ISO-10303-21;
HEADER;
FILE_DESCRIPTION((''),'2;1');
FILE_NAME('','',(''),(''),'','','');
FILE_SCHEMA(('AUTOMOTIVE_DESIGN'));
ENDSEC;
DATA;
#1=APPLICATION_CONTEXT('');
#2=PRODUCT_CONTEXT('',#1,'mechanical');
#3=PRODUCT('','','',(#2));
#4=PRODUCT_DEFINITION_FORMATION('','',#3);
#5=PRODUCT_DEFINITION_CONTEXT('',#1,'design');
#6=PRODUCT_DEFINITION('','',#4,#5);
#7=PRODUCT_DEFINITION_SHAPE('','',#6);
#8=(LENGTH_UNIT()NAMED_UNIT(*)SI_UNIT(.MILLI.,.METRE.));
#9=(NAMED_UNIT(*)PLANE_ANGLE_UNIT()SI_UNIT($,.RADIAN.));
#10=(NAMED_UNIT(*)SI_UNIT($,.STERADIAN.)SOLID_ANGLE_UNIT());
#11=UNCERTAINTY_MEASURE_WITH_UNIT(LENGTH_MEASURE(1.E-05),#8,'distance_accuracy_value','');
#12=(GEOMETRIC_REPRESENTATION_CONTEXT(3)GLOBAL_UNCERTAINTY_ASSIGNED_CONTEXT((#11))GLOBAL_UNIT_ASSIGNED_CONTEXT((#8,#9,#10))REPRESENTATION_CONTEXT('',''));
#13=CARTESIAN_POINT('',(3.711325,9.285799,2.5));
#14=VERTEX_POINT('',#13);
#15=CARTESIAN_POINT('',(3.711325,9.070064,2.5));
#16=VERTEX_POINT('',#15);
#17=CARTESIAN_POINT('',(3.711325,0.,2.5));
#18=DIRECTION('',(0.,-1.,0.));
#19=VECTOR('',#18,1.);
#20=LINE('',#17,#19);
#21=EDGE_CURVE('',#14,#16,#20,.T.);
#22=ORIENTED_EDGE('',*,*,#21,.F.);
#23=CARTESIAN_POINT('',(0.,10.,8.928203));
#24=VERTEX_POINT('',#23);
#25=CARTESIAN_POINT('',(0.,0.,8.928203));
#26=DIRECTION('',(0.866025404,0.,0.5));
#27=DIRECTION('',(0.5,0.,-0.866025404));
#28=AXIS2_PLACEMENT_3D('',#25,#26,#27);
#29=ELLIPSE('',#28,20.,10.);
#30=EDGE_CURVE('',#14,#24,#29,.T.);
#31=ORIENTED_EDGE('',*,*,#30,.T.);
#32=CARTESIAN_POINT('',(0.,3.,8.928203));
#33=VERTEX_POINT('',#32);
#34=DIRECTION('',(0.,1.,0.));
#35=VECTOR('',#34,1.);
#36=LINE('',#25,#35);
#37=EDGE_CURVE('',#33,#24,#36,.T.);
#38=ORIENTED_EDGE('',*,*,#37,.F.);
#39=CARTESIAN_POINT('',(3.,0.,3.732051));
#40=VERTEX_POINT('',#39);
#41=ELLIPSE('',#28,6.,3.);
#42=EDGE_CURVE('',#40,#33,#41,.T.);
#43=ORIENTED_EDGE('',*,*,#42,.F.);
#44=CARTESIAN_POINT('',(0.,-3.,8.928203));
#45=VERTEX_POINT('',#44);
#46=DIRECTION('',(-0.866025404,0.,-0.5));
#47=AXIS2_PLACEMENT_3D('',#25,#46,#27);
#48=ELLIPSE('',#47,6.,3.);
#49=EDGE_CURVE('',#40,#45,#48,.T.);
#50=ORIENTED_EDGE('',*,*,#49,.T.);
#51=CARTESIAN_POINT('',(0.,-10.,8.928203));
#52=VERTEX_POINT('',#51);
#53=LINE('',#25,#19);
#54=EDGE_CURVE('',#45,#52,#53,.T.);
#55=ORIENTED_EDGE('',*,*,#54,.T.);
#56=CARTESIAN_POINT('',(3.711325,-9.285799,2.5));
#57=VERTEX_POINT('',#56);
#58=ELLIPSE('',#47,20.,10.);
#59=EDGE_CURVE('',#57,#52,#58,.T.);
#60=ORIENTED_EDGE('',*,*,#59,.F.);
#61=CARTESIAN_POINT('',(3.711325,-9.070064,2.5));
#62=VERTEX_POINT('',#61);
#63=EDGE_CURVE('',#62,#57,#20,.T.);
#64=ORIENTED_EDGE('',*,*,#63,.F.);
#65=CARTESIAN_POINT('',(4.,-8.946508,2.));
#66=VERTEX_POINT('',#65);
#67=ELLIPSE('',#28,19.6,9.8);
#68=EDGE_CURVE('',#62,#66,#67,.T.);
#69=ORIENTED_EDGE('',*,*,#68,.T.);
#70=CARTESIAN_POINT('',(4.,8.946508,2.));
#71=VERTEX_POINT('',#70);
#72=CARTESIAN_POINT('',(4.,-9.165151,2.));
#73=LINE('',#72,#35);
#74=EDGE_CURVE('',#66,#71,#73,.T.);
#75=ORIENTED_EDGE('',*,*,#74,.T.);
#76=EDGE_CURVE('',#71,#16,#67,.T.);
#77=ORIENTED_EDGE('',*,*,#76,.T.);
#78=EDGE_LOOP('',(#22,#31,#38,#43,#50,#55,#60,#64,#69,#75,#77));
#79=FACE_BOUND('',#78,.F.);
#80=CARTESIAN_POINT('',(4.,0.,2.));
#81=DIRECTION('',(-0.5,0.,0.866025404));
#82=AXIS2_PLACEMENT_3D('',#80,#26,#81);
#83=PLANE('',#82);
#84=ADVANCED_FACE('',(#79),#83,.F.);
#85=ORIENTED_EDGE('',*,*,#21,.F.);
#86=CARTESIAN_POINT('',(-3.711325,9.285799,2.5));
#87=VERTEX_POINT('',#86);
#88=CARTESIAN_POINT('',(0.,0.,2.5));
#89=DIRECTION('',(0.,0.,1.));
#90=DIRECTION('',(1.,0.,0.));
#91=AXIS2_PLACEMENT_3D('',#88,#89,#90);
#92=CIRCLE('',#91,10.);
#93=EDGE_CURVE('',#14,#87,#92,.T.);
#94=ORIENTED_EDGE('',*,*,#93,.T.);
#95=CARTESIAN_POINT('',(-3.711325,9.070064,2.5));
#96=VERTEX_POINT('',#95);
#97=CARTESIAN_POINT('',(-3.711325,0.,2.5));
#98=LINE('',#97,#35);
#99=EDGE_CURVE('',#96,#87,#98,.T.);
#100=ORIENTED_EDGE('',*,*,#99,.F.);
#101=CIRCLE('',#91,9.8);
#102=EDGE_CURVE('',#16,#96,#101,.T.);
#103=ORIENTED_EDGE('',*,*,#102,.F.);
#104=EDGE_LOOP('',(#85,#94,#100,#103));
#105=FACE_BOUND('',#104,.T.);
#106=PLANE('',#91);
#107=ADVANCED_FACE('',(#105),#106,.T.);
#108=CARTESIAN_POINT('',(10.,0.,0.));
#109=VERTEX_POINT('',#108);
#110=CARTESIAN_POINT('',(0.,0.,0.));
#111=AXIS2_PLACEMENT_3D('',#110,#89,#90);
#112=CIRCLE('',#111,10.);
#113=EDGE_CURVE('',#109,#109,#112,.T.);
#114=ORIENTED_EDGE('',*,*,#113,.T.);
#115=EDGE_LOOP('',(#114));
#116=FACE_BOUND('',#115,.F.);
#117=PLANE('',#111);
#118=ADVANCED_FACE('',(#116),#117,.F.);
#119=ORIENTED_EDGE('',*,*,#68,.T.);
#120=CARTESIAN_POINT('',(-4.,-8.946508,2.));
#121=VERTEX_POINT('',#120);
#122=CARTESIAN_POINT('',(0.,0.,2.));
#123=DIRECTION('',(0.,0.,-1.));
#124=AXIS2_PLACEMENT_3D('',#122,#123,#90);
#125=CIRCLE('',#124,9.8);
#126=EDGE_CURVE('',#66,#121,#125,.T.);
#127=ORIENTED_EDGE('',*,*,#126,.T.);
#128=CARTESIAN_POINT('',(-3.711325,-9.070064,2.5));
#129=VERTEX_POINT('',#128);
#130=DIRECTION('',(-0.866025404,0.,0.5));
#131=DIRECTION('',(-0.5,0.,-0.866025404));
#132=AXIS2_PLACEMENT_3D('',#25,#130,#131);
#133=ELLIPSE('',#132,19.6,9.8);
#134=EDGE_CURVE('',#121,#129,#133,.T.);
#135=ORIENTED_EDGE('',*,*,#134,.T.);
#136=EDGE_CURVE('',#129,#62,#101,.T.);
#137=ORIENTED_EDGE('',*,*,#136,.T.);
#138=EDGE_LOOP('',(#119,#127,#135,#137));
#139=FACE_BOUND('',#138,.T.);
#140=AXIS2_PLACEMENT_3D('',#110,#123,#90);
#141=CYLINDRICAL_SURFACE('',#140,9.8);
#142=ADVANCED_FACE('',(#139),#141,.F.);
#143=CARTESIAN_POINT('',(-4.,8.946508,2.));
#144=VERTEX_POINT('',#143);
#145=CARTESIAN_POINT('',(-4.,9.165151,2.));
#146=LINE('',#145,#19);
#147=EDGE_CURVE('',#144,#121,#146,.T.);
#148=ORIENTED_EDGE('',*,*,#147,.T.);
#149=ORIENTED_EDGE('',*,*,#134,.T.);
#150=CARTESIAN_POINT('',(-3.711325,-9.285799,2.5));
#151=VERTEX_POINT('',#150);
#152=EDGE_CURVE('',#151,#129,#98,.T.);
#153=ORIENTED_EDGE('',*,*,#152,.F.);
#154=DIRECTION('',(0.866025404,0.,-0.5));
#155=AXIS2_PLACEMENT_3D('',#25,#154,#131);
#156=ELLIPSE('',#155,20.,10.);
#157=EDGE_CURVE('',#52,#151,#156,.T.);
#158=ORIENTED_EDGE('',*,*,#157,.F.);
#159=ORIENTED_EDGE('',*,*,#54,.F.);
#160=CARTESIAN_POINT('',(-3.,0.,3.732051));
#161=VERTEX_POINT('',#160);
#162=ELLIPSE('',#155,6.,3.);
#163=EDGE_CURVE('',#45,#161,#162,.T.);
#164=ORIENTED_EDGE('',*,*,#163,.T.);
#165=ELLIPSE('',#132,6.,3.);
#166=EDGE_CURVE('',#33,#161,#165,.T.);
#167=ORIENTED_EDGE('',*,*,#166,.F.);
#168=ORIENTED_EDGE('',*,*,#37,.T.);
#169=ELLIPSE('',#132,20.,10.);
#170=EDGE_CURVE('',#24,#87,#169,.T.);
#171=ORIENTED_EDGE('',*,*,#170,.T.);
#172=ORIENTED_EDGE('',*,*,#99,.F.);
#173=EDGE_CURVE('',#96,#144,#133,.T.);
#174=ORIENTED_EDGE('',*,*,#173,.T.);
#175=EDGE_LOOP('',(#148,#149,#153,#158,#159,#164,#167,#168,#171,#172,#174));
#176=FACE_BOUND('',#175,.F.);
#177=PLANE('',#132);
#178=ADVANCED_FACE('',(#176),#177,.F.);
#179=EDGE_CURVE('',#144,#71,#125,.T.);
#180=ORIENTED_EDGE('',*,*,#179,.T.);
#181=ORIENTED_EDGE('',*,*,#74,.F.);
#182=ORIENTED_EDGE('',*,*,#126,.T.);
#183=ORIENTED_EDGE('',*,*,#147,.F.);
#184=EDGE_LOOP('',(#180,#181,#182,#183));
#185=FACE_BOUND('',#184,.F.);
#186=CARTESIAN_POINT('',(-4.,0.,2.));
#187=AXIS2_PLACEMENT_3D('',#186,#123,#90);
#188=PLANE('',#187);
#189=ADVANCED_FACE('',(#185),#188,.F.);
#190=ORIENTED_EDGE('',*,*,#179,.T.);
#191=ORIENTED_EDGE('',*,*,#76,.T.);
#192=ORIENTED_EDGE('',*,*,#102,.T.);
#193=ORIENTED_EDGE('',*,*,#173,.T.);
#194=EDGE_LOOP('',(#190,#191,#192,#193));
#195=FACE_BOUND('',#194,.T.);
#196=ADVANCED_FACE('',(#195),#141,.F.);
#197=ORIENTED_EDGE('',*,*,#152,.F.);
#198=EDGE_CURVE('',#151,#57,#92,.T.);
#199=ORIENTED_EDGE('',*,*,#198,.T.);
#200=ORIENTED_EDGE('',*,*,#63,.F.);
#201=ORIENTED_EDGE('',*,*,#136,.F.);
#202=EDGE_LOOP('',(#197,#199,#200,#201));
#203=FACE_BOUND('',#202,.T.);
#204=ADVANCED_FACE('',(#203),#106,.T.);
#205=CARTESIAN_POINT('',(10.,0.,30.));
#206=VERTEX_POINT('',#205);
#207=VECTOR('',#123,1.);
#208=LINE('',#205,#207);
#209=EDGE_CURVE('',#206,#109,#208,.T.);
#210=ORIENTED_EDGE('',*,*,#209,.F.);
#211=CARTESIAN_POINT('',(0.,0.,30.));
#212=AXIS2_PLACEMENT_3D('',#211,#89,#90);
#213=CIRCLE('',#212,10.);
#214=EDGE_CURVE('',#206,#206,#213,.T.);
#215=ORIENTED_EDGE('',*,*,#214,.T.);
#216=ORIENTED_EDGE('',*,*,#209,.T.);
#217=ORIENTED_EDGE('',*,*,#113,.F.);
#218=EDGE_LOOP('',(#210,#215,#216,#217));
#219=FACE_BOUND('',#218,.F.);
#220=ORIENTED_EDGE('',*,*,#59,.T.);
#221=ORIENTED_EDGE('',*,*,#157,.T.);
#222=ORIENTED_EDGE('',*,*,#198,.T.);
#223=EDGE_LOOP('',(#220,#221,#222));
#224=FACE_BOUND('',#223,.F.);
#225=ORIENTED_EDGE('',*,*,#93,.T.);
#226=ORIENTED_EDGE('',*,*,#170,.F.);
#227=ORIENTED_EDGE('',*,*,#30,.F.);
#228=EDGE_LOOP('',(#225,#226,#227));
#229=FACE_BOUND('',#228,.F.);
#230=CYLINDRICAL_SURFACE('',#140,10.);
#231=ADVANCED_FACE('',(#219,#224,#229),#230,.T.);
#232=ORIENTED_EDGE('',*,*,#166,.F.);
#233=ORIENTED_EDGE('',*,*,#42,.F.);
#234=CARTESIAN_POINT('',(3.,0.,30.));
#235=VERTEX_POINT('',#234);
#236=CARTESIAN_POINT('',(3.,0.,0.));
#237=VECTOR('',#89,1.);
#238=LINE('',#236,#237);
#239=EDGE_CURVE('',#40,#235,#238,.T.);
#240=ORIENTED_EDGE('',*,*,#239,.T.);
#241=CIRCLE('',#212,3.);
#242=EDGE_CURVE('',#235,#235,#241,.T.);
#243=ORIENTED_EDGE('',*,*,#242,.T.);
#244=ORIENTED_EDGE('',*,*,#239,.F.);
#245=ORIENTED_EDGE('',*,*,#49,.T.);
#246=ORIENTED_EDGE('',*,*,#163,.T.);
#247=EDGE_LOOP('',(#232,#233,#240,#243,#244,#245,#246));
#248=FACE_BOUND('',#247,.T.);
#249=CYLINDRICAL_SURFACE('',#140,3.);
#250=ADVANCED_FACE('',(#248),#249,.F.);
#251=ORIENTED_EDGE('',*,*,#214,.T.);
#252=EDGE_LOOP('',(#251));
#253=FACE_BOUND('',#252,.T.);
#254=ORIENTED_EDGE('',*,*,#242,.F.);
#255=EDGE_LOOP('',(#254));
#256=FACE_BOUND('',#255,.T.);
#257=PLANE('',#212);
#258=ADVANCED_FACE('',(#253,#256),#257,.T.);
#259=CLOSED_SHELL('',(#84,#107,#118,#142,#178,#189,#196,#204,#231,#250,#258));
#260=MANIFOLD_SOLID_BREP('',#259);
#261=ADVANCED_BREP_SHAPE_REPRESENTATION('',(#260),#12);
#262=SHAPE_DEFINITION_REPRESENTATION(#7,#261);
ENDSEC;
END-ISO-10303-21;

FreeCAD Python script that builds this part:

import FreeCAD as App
import Part
import Sketcher

V = App.Vector
Q = App.Units.Quantity

doc = App.newDocument("Part")
body = doc.addObject("PartDesign::Body", "Body")

sketch1 = body.newObject("Sketcher::SketchObject", "Sketch")
sketch1.AttachmentSupport = (doc.getObject("XY_Plane"), [""])
sketch1.MapMode = "FlatFace"
sketch1.addGeometry(Part.Circle(V(0, 0, 0), V(0, 0, 1), 10), False)
sketch1.addConstraint(Sketcher.Constraint("Coincident", 0, 3, -1, 1))
sketch1.addConstraint(Sketcher.Constraint("Diameter", 0, 20.0))
pad1 = body.newObject("PartDesign::Pad", "Pad")
pad1.Profile = sketch1
pad1.Length = 2

sketch2 = body.newObject("Sketcher::SketchObject", "Sketch001")
sketch2.AttachmentSupport = (doc.getObject("XY_Plane"), [""])
sketch2.MapMode = "FlatFace"
sketch2.addGeometry(Part.Circle(V(0, 0, 0), V(0, 0, 1), 10), False)
sketch2.addGeometry(Part.Circle(V(0, 0, 0), V(0, 0, 1), 3), False)
sketch2.addConstraint(Sketcher.Constraint("Coincident", 0, 3, -1, 1))
sketch2.addConstraint(Sketcher.Constraint("Coincident", 1, 3, -1, 1))
sketch2.addConstraint(Sketcher.Constraint("Diameter", 0, 20.0))
sketch2.addConstraint(Sketcher.Constraint("Diameter", 1, 6.0))
pad2 = body.newObject("PartDesign::Pad", "Pad001")
pad2.Profile = sketch2
pad2.Length = 30

sketch3 = body.newObject("Sketcher::SketchObject", "Sketch002")
sketch3.AttachmentSupport = (doc.getObject("XZ_Plane"), [""])
sketch3.MapMode = "FlatFace"
sketch3.addGeometry(Part.LineSegment(V(-4, 2, 0), V(4, 2, 0)), False)
sketch3.addGeometry(Part.LineSegment(V(4, 2, 0), V(0, 9, 0)), False)
sketch3.addGeometry(Part.LineSegment(V(0, 9, 0), V(-4, 2, 0)), False)
sketch3.addConstraint(Sketcher.Constraint("Coincident", 0, 2, 1, 1))
sketch3.addConstraint(Sketcher.Constraint("Coincident", 1, 2, 2, 1))
sketch3.addConstraint(Sketcher.Constraint("Coincident", 2, 2, 0, 1))
sketch3.addConstraint(Sketcher.Constraint("Horizontal", 0))
sketch3.addConstraint(Sketcher.Constraint("PointOnObject", 1, 2, -2))
sketch3.addConstraint(Sketcher.Constraint("Equal", 1, 2))
sketch3.addConstraint(Sketcher.Constraint("DistanceX", 0, 1, 0, 2, 8.0))
sketch3.addConstraint(Sketcher.Constraint("Angle", 1, Q("120 deg")))
sketch3.addConstraint(Sketcher.Constraint("DistanceY", -1, 1, 0, 2, 2.0))
pocket1 = body.newObject("PartDesign::Pocket", "Pocket")
pocket1.Profile = sketch3
pocket1.Type = "ThroughAll"
pocket1.Midplane = True

sketch4 = body.newObject("Sketcher::SketchObject", "Sketch003")
sketch4.AttachmentSupport = (doc.getObject("XY_Plane"), [""])
sketch4.MapMode = "FlatFace"
sketch4.addGeometry(Part.Circle(V(0, 0, 0), V(0, 0, 1), 10), False)
sketch4.addGeometry(Part.Circle(V(0, 0, 0), V(0, 0, 1), 10), False)
sketch4.addConstraint(Sketcher.Constraint("Coincident", 0, 3, -1, 1))
sketch4.addConstraint(Sketcher.Constraint("Coincident", 1, 3, -1, 1))
sketch4.addConstraint(Sketcher.Constraint("Diameter", 0, 20.0))
sketch4.addConstraint(Sketcher.Constraint("Diameter", 1, 19.6))
pad3 = body.newObject("PartDesign::Pad", "Pad002")
pad3.Profile = sketch4
pad3.Length = 2.5

doc.recompute()
